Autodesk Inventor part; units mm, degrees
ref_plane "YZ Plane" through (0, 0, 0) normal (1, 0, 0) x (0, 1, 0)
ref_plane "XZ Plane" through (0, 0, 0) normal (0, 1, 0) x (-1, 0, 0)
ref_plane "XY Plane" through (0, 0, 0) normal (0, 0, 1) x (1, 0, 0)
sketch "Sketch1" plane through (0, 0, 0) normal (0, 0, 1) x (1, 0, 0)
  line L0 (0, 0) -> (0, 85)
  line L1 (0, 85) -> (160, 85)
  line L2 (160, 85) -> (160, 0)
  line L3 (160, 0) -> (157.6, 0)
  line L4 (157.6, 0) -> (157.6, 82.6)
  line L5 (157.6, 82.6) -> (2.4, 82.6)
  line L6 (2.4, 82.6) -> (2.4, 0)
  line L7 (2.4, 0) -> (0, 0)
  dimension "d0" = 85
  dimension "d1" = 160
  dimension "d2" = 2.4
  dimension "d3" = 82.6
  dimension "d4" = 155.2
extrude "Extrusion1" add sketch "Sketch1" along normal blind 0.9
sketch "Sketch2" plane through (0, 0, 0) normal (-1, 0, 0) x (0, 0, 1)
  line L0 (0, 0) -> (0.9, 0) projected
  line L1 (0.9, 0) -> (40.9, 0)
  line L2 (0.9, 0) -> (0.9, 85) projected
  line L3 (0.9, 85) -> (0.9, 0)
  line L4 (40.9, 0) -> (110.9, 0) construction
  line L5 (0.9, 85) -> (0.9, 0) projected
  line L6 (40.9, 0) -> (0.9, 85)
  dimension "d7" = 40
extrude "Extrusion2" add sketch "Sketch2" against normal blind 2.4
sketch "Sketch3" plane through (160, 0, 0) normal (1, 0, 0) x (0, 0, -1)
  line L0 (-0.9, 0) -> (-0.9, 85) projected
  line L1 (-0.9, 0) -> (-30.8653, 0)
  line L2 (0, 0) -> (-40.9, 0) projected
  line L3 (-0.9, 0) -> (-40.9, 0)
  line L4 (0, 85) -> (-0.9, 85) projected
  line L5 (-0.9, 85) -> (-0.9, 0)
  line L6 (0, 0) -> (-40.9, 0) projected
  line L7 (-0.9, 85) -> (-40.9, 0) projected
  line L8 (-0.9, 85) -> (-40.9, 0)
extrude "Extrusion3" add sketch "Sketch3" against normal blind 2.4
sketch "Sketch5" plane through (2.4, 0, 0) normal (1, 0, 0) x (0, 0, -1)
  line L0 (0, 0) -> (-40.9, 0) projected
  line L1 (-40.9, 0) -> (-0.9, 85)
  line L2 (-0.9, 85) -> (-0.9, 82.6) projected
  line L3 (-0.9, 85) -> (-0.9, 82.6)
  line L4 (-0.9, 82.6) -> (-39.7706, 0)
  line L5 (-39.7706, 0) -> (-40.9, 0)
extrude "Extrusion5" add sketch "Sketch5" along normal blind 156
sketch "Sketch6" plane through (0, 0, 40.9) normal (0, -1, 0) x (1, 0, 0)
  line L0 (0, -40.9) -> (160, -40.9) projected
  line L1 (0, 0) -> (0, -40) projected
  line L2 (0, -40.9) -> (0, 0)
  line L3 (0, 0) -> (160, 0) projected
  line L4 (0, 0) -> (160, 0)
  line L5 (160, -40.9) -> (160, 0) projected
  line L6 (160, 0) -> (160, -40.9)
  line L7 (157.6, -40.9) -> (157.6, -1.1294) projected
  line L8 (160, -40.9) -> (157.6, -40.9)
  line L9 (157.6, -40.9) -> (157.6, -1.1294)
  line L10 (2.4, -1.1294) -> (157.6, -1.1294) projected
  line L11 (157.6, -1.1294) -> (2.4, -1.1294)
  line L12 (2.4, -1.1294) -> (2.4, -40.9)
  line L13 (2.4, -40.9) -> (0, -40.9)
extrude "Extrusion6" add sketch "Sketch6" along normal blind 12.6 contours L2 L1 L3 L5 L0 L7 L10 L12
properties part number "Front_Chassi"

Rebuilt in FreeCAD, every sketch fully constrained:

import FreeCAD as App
import Part
import Sketcher
Q = App.Units.Quantity

doc = App.newDocument("Part")
body = doc.addObject("PartDesign::Body", "Body")

# Sketch on XY plane
sketch1 = doc.addObject("Sketcher::SketchObject", "Sketch")
body.addObject(sketch1)
sketch1.AttachmentSupport = (doc.XY_Plane, [""])
sketch1.MapMode = "FlatFace"
sketch1.addGeometry([
    Part.LineSegment(App.Vector(0, 85, 0), App.Vector(0, 0, 0)),  # 0
    Part.LineSegment(App.Vector(0, 0, 0), App.Vector(2.4, 0, 0)),  # 1
    Part.LineSegment(App.Vector(2.4, 0, 0), App.Vector(2.4, 82.6, 0)),  # 2
    Part.LineSegment(App.Vector(2.4, 82.6, 0), App.Vector(157.6, 82.6, 0)),  # 3
    Part.LineSegment(App.Vector(157.6, 82.6, 0), App.Vector(157.6, 0, 0)),  # 4
    Part.LineSegment(App.Vector(157.6, 0, 0), App.Vector(160, 0, 0)),  # 5
    Part.LineSegment(App.Vector(160, 0, 0), App.Vector(160, 85, 0)),  # 6
    Part.LineSegment(App.Vector(160, 85, 0), App.Vector(0, 85, 0)),  # 7
], False)
sketch1.addConstraint([
    Sketcher.Constraint("Coincident", 0, 2, 1, 1),
    Sketcher.Constraint("Coincident", 1, 2, 2, 1),
    Sketcher.Constraint("Coincident", 2, 2, 3, 1),
    Sketcher.Constraint("Coincident", 3, 2, 4, 1),
    Sketcher.Constraint("Coincident", 4, 2, 5, 1),
    Sketcher.Constraint("Coincident", 5, 2, 6, 1),
    Sketcher.Constraint("Coincident", 6, 2, 7, 1),
    Sketcher.Constraint("Coincident", 7, 2, 0, 1),
    Sketcher.Constraint("Vertical", 0),
    Sketcher.Constraint("Horizontal", 1),
    Sketcher.Constraint("Vertical", 2),
    Sketcher.Constraint("Horizontal", 3),
    Sketcher.Constraint("Vertical", 4),
    Sketcher.Constraint("Horizontal", 5),
    Sketcher.Constraint("Vertical", 6),
    Sketcher.Constraint("Horizontal", 7),
    Sketcher.Constraint("Coincident", 0, 2, -1, 1),
    Sketcher.Constraint("PointOnObject", 4, 2, -1),
    Sketcher.Constraint("Equal", 1, 5),
    Sketcher.Constraint("DistanceX", 7, 2, 7, 1, 160.0),
    Sketcher.Constraint("DistanceY", 0, 2, 0, 1, 85.0),
    Sketcher.Constraint("DistanceX", 1, 1, 1, 2, 2.4),
    Sketcher.Constraint("DistanceY", 2, 1, 2, 2, 82.6),
])
pad1 = doc.addObject("PartDesign::Pad", "Pad")
body.addObject(pad1)
pad1.Profile = sketch1
pad1.Length = 0.9

# Sketch on YZ plane
sketch2 = doc.addObject("Sketcher::SketchObject", "Sketch001")
body.addObject(sketch2)
sketch2.AttachmentSupport = (doc.YZ_Plane, [""])
sketch2.MapMode = "FlatFace"
sketch2.addGeometry([
    Part.LineSegment(App.Vector(85, 1, 0), App.Vector(0, 1, 0)),
    Part.LineSegment(App.Vector(0, 1, 0), App.Vector(0, 41, 0)),
    Part.LineSegment(App.Vector(0, 41, 0), App.Vector(85, 1, 0)),
], False)
sketch2.addConstraint([
    Sketcher.Constraint("Coincident", 0, 2, 1, 1),
    Sketcher.Constraint("Coincident", 1, 2, 2, 1),
    Sketcher.Constraint("Coincident", 2, 2, 0, 1),
    Sketcher.Constraint("Horizontal", 0),
    Sketcher.Constraint("Vertical", 1),
    Sketcher.Constraint("PointOnObject", 0, 2, -2),
    Sketcher.Constraint("DistanceY", 1, 1, 1, 2, 40.0),
    Sketcher.Constraint("DistanceX", 0, 2, 0, 1, 85.0),
    Sketcher.Constraint("DistanceY", -1, 1, 0, 2, 0.9),
])
pad2 = doc.addObject("PartDesign::Pad", "Pad001")
body.addObject(pad2)
pad2.Profile = sketch2
pad2.Length = 2.4

# Sketch on YZ plane
sketch3 = doc.addObject("Sketcher::SketchObject", "Sketch002")
body.addObject(sketch3)
sketch3.AttachmentSupport = (doc.YZ_Plane, [""])
sketch3.MapMode = "FlatFace"
sketch3.AttachmentOffset = App.Placement(App.Vector(0, 0, 160), App.Rotation())
sketch3.addGeometry([
    Part.LineSegment(App.Vector(0, 41, 0), App.Vector(0, 1, 0)),
    Part.LineSegment(App.Vector(0, 1, 0), App.Vector(85, 1, 0)),
    Part.LineSegment(App.Vector(85, 1, 0), App.Vector(0, 41, 0)),
], False)
sketch3.addConstraint([
    Sketcher.Constraint("Coincident", 0, 2, 1, 1),
    Sketcher.Constraint("Coincident", 1, 2, 2, 1),
    Sketcher.Constraint("Coincident", 2, 2, 0, 1),
    Sketcher.Constraint("Vertical", 0),
    Sketcher.Constraint("Horizontal", 1),
    Sketcher.Constraint("PointOnObject", 0, 2, -2),
    Sketcher.Constraint("DistanceX", 1, 1, 1, 2, 85.0),
    Sketcher.Constraint("DistanceY", 0, 2, 0, 1, 40.0),
    Sketcher.Constraint("DistanceY", -1, 1, 0, 2, 0.9),
])
pad3 = doc.addObject("PartDesign::Pad", "Pad002")
body.addObject(pad3)
pad3.Profile = sketch3
pad3.Length = 2.4
pad3.Reversed = True

# Sketch on YZ plane
sketch4 = doc.addObject("Sketcher::SketchObject", "Sketch003")
body.addObject(sketch4)
sketch4.AttachmentSupport = (doc.YZ_Plane, [""])
sketch4.MapMode = "FlatFace"
sketch4.AttachmentOffset = App.Placement(App.Vector(0, 0, 2.4), App.Rotation())
sketch4.addGeometry([
    Part.LineSegment(App.Vector(0, 40.9, 0), App.Vector(0, 39.8, 0)),
    Part.LineSegment(App.Vector(0, 39.8, 0), App.Vector(82.6, 0.9, 0)),
    Part.LineSegment(App.Vector(82.6, 0.9, 0), App.Vector(85, 0.9, 0)),
    Part.LineSegment(App.Vector(85, 0.9, 0), App.Vector(0, 40.9, 0)),
], False)
sketch4.addConstraint([
    Sketcher.Constraint("Coincident", 0, 2, 1, 1),
    Sketcher.Constraint("Coincident", 1, 2, 2, 1),
    Sketcher.Constraint("Coincident", 2, 2, 3, 1),
    Sketcher.Constraint("Coincident", 3, 2, 0, 1),
    Sketcher.Constraint("Vertical", 0),
    Sketcher.Constraint("Horizontal", 2),
    Sketcher.Constraint("PointOnObject", 0, 2, -2),
    Sketcher.Constraint("Parallel", 1, 3),
    Sketcher.Constraint("DistanceX", 2, 1, 2, 2, 2.4),
    Sketcher.Constraint("DistanceX", -1, 1, 2, 2, 85.0),
    Sketcher.Constraint("Angle", 1, Q("-25.2011 deg")),
    Sketcher.Constraint("DistanceY", -1, 1, 1, 2, 0.9),
])
pad4 = doc.addObject("PartDesign::Pad", "Pad003")
body.addObject(pad4)
pad4.Profile = sketch4
pad4.Length = 156

# Sketch on XZ plane
sketch5 = doc.addObject("Sketcher::SketchObject", "Sketch004")
body.addObject(sketch5)
sketch5.AttachmentSupport = (doc.XZ_Plane, [""])
sketch5.MapMode = "FlatFace"
sketch5.addGeometry([
    Part.LineSegment(App.Vector(0, 40.9, 0), App.Vector(0, 0, 0)),  # 0
    Part.LineSegment(App.Vector(0, 0, 0), App.Vector(2.4, 0, 0)),  # 1
    Part.LineSegment(App.Vector(2.4, 0, 0), App.Vector(2.4, 39.8, 0)),  # 2
    Part.LineSegment(App.Vector(2.4, 39.8, 0), App.Vector(157.6, 39.8, 0)),  # 3
    Part.LineSegment(App.Vector(157.6, 39.8, 0), App.Vector(157.6, 0, 0)),  # 4
    Part.LineSegment(App.Vector(157.6, 0, 0), App.Vector(160, 0, 0)),  # 5
    Part.LineSegment(App.Vector(160, 0, 0), App.Vector(160, 40.9, 0)),  # 6
    Part.LineSegment(App.Vector(160, 40.9, 0), App.Vector(0, 40.9, 0)),  # 7
], False)
sketch5.addConstraint([
    Sketcher.Constraint("Coincident", 0, 2, 1, 1),
    Sketcher.Constraint("Coincident", 1, 2, 2, 1),
    Sketcher.Constraint("Coincident", 2, 2, 3, 1),
    Sketcher.Constraint("Coincident", 3, 2, 4, 1),
    Sketcher.Constraint("Coincident", 4, 2, 5, 1),
    Sketcher.Constraint("Coincident", 5, 2, 6, 1),
    Sketcher.Constraint("Coincident", 6, 2, 7, 1),
    Sketcher.Constraint("Coincident", 7, 2, 0, 1),
    Sketcher.Constraint("Vertical", 0),
    Sketcher.Constraint("Horizontal", 1),
    Sketcher.Constraint("Vertical", 2),
    Sketcher.Constraint("Horizontal", 3),
    Sketcher.Constraint("Vertical", 4),
    Sketcher.Constraint("Horizontal", 5),
    Sketcher.Constraint("Vertical", 6),
    Sketcher.Constraint("Horizontal", 7),
    Sketcher.Constraint("Coincident", 0, 2, -1, 1),
    Sketcher.Constraint("PointOnObject", 4, 2, -1),
    Sketcher.Constraint("Equal", 1, 5),
    Sketcher.Constraint("DistanceX", 7, 2, 7, 1, 160.0),
    Sketcher.Constraint("DistanceX", 1, 1, 1, 2, 2.4),
    Sketcher.Constraint("DistanceY", 0, 2, 0, 1, 40.9),
    Sketcher.Constraint("DistanceY", 2, 1, 2, 2, 39.7706),
])
pad5 = doc.addObject("PartDesign::Pad", "Pad004")
body.addObject(pad5)
pad5.Profile = sketch5
pad5.Length = 12.6

doc.recompute()
